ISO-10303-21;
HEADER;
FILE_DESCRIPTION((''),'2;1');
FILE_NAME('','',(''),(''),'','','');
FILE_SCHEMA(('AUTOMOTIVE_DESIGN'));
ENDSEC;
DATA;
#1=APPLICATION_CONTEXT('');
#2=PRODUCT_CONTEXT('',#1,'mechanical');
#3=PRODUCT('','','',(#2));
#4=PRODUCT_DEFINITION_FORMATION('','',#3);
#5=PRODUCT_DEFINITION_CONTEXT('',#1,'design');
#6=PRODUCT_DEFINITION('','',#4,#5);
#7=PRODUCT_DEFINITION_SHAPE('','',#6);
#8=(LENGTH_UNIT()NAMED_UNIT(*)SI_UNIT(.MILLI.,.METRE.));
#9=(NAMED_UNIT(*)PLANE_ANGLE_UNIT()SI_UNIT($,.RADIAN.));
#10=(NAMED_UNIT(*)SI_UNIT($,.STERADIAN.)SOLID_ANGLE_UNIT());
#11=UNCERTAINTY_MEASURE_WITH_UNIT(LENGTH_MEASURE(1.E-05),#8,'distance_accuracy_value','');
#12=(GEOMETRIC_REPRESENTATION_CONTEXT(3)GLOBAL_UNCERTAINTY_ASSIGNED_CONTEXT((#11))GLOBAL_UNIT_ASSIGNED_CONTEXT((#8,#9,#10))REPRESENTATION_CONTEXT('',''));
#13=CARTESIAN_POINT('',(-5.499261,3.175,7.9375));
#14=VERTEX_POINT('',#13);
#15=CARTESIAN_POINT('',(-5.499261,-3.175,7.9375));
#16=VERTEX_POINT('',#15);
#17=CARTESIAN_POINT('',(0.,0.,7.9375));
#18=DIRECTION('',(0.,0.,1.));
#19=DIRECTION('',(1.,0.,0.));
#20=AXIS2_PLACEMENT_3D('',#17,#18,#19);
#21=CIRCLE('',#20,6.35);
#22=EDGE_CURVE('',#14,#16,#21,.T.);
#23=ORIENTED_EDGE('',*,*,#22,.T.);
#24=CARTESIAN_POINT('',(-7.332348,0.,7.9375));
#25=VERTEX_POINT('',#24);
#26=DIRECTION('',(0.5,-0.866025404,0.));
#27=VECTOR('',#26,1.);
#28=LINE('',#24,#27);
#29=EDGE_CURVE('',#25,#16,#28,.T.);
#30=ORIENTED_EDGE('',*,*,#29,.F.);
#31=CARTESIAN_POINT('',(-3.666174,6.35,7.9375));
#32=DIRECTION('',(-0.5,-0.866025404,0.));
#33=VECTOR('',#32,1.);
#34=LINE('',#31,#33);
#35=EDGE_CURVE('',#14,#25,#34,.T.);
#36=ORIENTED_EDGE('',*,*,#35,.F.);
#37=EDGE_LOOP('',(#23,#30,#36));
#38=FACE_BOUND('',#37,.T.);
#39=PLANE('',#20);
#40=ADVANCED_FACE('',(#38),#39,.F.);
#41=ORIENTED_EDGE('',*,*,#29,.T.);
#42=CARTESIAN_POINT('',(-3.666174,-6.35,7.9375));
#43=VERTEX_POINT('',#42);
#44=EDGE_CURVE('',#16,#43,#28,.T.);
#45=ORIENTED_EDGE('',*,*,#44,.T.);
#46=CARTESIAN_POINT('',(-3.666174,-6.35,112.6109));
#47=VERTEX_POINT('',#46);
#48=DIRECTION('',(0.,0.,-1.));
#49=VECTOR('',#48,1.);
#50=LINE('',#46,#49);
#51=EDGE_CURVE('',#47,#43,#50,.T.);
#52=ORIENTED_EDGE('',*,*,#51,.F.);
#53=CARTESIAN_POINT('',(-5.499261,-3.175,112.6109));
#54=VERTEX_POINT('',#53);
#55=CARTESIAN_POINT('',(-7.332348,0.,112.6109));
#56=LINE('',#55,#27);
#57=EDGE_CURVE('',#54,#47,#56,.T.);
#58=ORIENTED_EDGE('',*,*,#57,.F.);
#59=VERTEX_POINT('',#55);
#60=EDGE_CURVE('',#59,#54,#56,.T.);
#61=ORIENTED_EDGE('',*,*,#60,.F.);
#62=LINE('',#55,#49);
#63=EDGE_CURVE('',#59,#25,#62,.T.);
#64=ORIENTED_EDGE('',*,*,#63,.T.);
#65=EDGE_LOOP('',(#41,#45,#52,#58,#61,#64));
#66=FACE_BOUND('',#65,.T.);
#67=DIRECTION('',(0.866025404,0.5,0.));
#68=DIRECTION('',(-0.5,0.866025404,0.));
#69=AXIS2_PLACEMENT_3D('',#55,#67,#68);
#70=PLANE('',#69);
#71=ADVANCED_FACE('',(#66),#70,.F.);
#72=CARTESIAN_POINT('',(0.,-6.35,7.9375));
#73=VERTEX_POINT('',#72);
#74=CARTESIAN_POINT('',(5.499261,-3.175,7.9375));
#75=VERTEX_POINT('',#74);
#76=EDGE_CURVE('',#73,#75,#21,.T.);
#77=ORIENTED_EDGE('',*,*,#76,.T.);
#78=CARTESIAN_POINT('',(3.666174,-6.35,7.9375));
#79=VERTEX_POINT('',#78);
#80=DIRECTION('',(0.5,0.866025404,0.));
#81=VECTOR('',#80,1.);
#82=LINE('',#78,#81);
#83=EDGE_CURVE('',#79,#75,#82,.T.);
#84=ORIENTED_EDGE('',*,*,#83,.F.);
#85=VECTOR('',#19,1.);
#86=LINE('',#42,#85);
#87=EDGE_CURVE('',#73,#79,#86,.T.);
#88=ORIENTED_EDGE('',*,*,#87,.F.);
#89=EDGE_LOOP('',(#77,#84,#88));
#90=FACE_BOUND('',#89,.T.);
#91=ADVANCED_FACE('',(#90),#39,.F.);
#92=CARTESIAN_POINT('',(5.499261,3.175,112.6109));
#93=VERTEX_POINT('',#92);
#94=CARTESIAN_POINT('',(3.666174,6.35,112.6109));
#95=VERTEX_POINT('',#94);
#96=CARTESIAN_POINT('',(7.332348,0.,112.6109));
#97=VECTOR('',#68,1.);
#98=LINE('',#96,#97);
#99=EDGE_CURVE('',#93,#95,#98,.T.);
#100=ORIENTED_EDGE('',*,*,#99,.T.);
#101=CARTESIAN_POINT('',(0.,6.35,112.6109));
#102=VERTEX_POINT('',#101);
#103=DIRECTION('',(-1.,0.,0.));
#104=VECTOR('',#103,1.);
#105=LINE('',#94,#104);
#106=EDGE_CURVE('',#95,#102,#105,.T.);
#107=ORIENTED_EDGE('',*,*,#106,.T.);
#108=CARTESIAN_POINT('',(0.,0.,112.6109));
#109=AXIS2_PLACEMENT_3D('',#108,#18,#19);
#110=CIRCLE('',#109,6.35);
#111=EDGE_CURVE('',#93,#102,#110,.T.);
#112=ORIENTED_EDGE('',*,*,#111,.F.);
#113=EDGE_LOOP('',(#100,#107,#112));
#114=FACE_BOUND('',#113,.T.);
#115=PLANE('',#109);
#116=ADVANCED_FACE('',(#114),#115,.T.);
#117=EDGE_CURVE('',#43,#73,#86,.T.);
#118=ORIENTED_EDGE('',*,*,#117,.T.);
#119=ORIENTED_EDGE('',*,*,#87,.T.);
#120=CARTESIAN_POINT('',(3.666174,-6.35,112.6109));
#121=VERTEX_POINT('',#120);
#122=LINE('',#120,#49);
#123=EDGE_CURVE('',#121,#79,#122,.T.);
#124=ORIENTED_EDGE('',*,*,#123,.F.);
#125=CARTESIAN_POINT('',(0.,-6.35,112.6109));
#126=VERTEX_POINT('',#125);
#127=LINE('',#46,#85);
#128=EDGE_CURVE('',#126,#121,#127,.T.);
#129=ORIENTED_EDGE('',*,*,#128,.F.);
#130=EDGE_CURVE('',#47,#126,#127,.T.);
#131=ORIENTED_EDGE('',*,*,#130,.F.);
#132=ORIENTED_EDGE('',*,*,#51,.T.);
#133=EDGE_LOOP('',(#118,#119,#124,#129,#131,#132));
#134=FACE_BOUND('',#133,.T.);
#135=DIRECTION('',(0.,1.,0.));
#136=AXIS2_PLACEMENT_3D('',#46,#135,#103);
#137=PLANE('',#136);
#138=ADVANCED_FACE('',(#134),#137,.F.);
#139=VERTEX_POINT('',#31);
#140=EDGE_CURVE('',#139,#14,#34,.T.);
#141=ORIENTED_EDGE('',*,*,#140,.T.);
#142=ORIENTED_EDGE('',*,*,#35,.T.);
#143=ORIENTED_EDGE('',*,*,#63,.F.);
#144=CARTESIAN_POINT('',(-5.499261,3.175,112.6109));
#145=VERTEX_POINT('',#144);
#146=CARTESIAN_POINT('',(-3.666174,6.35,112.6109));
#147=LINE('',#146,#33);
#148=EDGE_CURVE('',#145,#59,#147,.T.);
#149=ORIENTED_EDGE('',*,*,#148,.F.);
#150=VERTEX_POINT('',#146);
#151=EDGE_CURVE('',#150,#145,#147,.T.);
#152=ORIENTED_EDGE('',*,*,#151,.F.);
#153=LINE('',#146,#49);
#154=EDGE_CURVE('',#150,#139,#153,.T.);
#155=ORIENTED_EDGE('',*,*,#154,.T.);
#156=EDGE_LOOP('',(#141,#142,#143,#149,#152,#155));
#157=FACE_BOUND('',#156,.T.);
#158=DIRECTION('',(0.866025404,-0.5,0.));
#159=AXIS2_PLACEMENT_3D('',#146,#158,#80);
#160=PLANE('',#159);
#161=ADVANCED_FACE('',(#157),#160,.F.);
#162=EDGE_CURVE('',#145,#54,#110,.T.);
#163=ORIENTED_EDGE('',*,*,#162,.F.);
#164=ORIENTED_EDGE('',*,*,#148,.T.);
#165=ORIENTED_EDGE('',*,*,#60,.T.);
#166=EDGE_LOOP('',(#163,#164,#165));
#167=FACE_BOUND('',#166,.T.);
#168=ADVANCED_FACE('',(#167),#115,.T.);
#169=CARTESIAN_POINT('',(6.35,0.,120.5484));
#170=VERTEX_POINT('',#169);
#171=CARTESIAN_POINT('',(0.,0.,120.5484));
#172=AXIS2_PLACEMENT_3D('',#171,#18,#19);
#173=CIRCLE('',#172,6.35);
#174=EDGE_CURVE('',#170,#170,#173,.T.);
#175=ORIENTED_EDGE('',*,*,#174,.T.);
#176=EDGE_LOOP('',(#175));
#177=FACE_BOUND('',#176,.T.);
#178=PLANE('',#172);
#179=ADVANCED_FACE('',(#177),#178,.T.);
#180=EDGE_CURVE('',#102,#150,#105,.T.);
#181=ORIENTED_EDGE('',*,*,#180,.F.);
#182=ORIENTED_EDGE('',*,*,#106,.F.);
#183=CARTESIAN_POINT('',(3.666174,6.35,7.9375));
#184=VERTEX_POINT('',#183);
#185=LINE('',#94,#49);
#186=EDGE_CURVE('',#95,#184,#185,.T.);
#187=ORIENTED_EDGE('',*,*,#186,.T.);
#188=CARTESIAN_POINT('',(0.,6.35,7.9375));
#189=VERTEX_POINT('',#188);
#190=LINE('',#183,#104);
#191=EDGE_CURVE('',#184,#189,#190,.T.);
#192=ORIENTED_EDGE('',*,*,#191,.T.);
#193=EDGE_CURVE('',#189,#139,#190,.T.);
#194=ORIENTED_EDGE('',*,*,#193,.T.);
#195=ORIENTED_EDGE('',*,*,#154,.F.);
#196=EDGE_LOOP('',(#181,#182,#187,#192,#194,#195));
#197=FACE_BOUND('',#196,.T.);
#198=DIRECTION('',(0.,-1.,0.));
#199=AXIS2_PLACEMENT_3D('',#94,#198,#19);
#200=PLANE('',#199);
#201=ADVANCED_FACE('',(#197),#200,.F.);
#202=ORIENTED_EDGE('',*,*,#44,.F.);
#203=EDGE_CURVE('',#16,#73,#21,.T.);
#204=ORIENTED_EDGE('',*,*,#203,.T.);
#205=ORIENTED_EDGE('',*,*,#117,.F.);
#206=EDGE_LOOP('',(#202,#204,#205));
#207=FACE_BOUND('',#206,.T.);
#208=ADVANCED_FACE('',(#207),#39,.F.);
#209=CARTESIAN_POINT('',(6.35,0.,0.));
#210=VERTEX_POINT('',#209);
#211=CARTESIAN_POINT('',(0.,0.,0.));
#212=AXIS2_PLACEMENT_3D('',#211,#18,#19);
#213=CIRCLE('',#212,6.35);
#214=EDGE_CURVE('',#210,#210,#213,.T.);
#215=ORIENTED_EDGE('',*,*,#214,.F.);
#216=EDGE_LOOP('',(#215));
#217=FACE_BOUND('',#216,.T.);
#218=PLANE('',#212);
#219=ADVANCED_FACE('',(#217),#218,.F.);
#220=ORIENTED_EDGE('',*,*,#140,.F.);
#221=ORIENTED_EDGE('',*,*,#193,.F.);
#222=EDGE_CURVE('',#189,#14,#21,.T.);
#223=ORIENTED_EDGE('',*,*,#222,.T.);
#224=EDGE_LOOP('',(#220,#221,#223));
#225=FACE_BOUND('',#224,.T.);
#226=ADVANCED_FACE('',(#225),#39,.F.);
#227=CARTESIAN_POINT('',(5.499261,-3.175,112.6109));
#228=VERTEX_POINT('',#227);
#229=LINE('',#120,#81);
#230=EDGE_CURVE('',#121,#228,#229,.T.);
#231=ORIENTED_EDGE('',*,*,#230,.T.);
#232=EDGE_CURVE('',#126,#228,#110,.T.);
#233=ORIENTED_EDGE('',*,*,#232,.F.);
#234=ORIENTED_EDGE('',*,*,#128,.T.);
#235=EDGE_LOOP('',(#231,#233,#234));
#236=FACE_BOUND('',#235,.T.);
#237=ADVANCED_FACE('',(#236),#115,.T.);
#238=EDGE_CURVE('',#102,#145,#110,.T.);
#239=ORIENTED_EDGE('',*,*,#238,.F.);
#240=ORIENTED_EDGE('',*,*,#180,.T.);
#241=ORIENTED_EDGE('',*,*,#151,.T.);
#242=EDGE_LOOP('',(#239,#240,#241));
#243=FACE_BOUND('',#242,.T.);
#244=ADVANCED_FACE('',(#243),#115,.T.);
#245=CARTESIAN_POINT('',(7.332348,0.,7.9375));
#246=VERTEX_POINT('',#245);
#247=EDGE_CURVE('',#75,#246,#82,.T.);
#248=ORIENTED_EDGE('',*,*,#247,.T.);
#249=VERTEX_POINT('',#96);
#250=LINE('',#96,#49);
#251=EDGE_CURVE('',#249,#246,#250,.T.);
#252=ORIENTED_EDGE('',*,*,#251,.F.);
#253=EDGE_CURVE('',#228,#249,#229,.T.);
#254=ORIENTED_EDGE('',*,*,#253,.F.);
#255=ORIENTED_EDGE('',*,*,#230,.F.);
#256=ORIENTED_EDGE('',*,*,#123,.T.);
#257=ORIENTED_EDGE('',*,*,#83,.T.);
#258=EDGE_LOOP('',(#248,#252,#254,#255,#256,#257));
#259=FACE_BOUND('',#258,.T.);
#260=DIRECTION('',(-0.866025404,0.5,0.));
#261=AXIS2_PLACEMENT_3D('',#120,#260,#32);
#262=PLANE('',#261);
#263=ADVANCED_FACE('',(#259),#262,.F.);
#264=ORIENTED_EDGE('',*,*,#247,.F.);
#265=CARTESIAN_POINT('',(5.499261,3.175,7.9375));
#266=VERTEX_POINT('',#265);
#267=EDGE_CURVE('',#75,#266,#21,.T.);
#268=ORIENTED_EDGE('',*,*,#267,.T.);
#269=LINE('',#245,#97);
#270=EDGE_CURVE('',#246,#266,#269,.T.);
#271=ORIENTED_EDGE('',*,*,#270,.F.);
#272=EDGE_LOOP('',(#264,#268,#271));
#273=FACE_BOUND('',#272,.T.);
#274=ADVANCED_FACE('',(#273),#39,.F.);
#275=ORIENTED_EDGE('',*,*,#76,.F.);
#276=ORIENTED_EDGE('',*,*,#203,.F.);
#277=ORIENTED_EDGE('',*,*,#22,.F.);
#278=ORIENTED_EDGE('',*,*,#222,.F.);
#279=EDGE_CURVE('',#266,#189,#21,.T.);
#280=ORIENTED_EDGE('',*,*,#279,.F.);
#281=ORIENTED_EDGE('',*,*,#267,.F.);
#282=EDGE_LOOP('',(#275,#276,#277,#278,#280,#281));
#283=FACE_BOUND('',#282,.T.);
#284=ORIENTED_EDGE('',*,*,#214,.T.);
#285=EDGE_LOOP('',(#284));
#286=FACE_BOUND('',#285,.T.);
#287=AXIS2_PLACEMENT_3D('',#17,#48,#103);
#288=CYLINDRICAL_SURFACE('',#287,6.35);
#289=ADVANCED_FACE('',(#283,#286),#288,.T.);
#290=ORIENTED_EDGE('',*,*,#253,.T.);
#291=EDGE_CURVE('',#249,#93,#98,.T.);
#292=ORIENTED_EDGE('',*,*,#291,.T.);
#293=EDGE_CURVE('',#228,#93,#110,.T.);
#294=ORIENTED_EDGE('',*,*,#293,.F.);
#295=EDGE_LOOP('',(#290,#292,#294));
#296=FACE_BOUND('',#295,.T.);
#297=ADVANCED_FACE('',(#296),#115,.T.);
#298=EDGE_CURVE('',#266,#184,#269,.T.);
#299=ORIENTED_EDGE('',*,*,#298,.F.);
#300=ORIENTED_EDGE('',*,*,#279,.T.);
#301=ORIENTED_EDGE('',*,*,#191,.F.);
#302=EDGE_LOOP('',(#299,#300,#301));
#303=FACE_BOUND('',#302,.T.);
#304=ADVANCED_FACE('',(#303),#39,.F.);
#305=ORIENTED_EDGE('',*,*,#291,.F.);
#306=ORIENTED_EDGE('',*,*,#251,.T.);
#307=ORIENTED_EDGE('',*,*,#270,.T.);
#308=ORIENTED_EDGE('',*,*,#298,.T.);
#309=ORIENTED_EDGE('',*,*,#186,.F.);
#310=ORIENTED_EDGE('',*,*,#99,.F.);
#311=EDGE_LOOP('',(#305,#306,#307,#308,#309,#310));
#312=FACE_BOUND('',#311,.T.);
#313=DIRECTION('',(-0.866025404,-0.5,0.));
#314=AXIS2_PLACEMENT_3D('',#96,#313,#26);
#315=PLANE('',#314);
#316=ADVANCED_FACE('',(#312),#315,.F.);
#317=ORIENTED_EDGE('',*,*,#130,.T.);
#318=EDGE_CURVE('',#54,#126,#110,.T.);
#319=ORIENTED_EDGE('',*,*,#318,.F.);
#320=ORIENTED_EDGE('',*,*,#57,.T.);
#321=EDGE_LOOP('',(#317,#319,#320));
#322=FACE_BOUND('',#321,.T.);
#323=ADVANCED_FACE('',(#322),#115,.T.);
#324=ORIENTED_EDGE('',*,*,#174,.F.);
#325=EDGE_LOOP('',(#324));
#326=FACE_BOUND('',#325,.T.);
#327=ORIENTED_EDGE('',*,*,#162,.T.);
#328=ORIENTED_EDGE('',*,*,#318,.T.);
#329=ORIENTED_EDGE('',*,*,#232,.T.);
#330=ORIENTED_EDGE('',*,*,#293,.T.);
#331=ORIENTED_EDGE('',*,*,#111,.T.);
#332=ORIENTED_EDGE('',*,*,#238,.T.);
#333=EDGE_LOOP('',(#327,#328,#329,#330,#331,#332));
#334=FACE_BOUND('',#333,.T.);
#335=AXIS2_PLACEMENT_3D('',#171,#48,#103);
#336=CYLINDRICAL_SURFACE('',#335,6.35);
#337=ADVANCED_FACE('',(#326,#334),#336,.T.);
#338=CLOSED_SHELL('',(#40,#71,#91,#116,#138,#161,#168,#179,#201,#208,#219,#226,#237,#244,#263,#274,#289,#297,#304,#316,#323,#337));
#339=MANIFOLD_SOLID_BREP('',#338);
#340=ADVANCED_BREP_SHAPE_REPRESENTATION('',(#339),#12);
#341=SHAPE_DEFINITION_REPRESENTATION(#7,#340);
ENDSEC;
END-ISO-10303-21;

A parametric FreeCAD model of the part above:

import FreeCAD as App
import Part
import Sketcher
from FreeCAD import Vector
Q = App.Units.Quantity

doc = App.newDocument("Part")
body = doc.addObject("PartDesign::Body", "Body")

sketch1 = doc.addObject("Sketcher::SketchObject", "Sketch")
body.addObject(sketch1)
sketch1.AttachmentSupport = (doc.XY_Plane, [""])
sketch1.MapMode = "FlatFace"
sketch1.addGeometry(Part.Circle(Vector(0, 0, 0), Vector(0, 0, 1), 6), False)
sketch1.addConstraint([
    Sketcher.Constraint("Coincident", 0, 3, -1, 1),
    Sketcher.Constraint("Diameter", 0, Q("0.5 in")),
])
pad1 = doc.addObject("PartDesign::Pad", "Pad")
body.addObject(pad1)
pad1.Profile = sketch1
pad1.Length = Q("0.3125 in")

sketch2 = doc.addObject("Sketcher::SketchObject", "Sketch001")
body.addObject(sketch2)
sketch2.AttachmentSupport = (doc.XY_Plane, [""])
sketch2.MapMode = "FlatFace"
sketch2.AttachmentOffset = App.Placement(Vector(0, 0, 0.3125 * 25.4), App.Rotation())
sketch2.addGeometry([
    Part.LineSegment(Vector(7, 0, 0), Vector(4, 6, 0)),
    Part.LineSegment(Vector(4, 6, 0), Vector(-4, 6, 0)),
    Part.LineSegment(Vector(-4, 6, 0), Vector(-7, 0, 0)),
    Part.LineSegment(Vector(-7, 0, 0), Vector(-4, -6, 0)),
    Part.LineSegment(Vector(-4, -6, 0), Vector(4, -6, 0)),
    Part.LineSegment(Vector(4, -6, 0), Vector(7, 0, 0)),
], False)
sketch2.addConstraint([
    Sketcher.Constraint("Coincident", 0, 2, 1, 1),
    Sketcher.Constraint("Coincident", 1, 2, 2, 1),
    Sketcher.Constraint("Coincident", 2, 2, 3, 1),
    Sketcher.Constraint("Coincident", 3, 2, 4, 1),
    Sketcher.Constraint("Coincident", 4, 2, 5, 1),
    Sketcher.Constraint("Coincident", 5, 2, 0, 1),
    Sketcher.Constraint("Horizontal", 1),
    Sketcher.Constraint("Horizontal", 4),
    Sketcher.Constraint("Symmetric", 0, 2, 3, 2, -1, 1),
    Sketcher.Constraint("Symmetric", 2, 2, 5, 2, -1, 1),
    Sketcher.Constraint("PointOnObject", 2, 2, -1),
    Sketcher.Constraint("Parallel", 2, 5),
    Sketcher.Constraint("Vertical", 1, 2, 3, 2),
    Sketcher.Constraint("Angle", 0, Q("120 deg")),
    Sketcher.Constraint("DistanceY", 3, 2, 1, 2, Q("0.5 in")),
    Sketcher.Constraint("DistanceX", 1, 2, 1, 1, 7.332348),
])
pad2 = doc.addObject("PartDesign::Pad", "Pad001")
body.addObject(pad2)
pad2.Profile = sketch2
pad2.Length = Q("4.121 in")

sketch3 = doc.addObject("Sketcher::SketchObject", "Sketch002")
body.addObject(sketch3)
sketch3.AttachmentSupport = (doc.XY_Plane, [""])
sketch3.MapMode = "FlatFace"
sketch3.AttachmentOffset = App.Placement(Vector(0, 0, 4.4335 * 25.4), App.Rotation())
sketch3.addGeometry(Part.Circle(Vector(0, 0, 0), Vector(0, 0, 1), 6), False)
sketch3.addConstraint([
    Sketcher.Constraint("Coincident", 0, 3, -1, 1),
    Sketcher.Constraint("Diameter", 0, Q("0.5 in")),
])
pad3 = doc.addObject("PartDesign::Pad", "Pad002")
body.addObject(pad3)
pad3.Profile = sketch3
pad3.Length = Q("0.3125 in")

doc.recompute()
